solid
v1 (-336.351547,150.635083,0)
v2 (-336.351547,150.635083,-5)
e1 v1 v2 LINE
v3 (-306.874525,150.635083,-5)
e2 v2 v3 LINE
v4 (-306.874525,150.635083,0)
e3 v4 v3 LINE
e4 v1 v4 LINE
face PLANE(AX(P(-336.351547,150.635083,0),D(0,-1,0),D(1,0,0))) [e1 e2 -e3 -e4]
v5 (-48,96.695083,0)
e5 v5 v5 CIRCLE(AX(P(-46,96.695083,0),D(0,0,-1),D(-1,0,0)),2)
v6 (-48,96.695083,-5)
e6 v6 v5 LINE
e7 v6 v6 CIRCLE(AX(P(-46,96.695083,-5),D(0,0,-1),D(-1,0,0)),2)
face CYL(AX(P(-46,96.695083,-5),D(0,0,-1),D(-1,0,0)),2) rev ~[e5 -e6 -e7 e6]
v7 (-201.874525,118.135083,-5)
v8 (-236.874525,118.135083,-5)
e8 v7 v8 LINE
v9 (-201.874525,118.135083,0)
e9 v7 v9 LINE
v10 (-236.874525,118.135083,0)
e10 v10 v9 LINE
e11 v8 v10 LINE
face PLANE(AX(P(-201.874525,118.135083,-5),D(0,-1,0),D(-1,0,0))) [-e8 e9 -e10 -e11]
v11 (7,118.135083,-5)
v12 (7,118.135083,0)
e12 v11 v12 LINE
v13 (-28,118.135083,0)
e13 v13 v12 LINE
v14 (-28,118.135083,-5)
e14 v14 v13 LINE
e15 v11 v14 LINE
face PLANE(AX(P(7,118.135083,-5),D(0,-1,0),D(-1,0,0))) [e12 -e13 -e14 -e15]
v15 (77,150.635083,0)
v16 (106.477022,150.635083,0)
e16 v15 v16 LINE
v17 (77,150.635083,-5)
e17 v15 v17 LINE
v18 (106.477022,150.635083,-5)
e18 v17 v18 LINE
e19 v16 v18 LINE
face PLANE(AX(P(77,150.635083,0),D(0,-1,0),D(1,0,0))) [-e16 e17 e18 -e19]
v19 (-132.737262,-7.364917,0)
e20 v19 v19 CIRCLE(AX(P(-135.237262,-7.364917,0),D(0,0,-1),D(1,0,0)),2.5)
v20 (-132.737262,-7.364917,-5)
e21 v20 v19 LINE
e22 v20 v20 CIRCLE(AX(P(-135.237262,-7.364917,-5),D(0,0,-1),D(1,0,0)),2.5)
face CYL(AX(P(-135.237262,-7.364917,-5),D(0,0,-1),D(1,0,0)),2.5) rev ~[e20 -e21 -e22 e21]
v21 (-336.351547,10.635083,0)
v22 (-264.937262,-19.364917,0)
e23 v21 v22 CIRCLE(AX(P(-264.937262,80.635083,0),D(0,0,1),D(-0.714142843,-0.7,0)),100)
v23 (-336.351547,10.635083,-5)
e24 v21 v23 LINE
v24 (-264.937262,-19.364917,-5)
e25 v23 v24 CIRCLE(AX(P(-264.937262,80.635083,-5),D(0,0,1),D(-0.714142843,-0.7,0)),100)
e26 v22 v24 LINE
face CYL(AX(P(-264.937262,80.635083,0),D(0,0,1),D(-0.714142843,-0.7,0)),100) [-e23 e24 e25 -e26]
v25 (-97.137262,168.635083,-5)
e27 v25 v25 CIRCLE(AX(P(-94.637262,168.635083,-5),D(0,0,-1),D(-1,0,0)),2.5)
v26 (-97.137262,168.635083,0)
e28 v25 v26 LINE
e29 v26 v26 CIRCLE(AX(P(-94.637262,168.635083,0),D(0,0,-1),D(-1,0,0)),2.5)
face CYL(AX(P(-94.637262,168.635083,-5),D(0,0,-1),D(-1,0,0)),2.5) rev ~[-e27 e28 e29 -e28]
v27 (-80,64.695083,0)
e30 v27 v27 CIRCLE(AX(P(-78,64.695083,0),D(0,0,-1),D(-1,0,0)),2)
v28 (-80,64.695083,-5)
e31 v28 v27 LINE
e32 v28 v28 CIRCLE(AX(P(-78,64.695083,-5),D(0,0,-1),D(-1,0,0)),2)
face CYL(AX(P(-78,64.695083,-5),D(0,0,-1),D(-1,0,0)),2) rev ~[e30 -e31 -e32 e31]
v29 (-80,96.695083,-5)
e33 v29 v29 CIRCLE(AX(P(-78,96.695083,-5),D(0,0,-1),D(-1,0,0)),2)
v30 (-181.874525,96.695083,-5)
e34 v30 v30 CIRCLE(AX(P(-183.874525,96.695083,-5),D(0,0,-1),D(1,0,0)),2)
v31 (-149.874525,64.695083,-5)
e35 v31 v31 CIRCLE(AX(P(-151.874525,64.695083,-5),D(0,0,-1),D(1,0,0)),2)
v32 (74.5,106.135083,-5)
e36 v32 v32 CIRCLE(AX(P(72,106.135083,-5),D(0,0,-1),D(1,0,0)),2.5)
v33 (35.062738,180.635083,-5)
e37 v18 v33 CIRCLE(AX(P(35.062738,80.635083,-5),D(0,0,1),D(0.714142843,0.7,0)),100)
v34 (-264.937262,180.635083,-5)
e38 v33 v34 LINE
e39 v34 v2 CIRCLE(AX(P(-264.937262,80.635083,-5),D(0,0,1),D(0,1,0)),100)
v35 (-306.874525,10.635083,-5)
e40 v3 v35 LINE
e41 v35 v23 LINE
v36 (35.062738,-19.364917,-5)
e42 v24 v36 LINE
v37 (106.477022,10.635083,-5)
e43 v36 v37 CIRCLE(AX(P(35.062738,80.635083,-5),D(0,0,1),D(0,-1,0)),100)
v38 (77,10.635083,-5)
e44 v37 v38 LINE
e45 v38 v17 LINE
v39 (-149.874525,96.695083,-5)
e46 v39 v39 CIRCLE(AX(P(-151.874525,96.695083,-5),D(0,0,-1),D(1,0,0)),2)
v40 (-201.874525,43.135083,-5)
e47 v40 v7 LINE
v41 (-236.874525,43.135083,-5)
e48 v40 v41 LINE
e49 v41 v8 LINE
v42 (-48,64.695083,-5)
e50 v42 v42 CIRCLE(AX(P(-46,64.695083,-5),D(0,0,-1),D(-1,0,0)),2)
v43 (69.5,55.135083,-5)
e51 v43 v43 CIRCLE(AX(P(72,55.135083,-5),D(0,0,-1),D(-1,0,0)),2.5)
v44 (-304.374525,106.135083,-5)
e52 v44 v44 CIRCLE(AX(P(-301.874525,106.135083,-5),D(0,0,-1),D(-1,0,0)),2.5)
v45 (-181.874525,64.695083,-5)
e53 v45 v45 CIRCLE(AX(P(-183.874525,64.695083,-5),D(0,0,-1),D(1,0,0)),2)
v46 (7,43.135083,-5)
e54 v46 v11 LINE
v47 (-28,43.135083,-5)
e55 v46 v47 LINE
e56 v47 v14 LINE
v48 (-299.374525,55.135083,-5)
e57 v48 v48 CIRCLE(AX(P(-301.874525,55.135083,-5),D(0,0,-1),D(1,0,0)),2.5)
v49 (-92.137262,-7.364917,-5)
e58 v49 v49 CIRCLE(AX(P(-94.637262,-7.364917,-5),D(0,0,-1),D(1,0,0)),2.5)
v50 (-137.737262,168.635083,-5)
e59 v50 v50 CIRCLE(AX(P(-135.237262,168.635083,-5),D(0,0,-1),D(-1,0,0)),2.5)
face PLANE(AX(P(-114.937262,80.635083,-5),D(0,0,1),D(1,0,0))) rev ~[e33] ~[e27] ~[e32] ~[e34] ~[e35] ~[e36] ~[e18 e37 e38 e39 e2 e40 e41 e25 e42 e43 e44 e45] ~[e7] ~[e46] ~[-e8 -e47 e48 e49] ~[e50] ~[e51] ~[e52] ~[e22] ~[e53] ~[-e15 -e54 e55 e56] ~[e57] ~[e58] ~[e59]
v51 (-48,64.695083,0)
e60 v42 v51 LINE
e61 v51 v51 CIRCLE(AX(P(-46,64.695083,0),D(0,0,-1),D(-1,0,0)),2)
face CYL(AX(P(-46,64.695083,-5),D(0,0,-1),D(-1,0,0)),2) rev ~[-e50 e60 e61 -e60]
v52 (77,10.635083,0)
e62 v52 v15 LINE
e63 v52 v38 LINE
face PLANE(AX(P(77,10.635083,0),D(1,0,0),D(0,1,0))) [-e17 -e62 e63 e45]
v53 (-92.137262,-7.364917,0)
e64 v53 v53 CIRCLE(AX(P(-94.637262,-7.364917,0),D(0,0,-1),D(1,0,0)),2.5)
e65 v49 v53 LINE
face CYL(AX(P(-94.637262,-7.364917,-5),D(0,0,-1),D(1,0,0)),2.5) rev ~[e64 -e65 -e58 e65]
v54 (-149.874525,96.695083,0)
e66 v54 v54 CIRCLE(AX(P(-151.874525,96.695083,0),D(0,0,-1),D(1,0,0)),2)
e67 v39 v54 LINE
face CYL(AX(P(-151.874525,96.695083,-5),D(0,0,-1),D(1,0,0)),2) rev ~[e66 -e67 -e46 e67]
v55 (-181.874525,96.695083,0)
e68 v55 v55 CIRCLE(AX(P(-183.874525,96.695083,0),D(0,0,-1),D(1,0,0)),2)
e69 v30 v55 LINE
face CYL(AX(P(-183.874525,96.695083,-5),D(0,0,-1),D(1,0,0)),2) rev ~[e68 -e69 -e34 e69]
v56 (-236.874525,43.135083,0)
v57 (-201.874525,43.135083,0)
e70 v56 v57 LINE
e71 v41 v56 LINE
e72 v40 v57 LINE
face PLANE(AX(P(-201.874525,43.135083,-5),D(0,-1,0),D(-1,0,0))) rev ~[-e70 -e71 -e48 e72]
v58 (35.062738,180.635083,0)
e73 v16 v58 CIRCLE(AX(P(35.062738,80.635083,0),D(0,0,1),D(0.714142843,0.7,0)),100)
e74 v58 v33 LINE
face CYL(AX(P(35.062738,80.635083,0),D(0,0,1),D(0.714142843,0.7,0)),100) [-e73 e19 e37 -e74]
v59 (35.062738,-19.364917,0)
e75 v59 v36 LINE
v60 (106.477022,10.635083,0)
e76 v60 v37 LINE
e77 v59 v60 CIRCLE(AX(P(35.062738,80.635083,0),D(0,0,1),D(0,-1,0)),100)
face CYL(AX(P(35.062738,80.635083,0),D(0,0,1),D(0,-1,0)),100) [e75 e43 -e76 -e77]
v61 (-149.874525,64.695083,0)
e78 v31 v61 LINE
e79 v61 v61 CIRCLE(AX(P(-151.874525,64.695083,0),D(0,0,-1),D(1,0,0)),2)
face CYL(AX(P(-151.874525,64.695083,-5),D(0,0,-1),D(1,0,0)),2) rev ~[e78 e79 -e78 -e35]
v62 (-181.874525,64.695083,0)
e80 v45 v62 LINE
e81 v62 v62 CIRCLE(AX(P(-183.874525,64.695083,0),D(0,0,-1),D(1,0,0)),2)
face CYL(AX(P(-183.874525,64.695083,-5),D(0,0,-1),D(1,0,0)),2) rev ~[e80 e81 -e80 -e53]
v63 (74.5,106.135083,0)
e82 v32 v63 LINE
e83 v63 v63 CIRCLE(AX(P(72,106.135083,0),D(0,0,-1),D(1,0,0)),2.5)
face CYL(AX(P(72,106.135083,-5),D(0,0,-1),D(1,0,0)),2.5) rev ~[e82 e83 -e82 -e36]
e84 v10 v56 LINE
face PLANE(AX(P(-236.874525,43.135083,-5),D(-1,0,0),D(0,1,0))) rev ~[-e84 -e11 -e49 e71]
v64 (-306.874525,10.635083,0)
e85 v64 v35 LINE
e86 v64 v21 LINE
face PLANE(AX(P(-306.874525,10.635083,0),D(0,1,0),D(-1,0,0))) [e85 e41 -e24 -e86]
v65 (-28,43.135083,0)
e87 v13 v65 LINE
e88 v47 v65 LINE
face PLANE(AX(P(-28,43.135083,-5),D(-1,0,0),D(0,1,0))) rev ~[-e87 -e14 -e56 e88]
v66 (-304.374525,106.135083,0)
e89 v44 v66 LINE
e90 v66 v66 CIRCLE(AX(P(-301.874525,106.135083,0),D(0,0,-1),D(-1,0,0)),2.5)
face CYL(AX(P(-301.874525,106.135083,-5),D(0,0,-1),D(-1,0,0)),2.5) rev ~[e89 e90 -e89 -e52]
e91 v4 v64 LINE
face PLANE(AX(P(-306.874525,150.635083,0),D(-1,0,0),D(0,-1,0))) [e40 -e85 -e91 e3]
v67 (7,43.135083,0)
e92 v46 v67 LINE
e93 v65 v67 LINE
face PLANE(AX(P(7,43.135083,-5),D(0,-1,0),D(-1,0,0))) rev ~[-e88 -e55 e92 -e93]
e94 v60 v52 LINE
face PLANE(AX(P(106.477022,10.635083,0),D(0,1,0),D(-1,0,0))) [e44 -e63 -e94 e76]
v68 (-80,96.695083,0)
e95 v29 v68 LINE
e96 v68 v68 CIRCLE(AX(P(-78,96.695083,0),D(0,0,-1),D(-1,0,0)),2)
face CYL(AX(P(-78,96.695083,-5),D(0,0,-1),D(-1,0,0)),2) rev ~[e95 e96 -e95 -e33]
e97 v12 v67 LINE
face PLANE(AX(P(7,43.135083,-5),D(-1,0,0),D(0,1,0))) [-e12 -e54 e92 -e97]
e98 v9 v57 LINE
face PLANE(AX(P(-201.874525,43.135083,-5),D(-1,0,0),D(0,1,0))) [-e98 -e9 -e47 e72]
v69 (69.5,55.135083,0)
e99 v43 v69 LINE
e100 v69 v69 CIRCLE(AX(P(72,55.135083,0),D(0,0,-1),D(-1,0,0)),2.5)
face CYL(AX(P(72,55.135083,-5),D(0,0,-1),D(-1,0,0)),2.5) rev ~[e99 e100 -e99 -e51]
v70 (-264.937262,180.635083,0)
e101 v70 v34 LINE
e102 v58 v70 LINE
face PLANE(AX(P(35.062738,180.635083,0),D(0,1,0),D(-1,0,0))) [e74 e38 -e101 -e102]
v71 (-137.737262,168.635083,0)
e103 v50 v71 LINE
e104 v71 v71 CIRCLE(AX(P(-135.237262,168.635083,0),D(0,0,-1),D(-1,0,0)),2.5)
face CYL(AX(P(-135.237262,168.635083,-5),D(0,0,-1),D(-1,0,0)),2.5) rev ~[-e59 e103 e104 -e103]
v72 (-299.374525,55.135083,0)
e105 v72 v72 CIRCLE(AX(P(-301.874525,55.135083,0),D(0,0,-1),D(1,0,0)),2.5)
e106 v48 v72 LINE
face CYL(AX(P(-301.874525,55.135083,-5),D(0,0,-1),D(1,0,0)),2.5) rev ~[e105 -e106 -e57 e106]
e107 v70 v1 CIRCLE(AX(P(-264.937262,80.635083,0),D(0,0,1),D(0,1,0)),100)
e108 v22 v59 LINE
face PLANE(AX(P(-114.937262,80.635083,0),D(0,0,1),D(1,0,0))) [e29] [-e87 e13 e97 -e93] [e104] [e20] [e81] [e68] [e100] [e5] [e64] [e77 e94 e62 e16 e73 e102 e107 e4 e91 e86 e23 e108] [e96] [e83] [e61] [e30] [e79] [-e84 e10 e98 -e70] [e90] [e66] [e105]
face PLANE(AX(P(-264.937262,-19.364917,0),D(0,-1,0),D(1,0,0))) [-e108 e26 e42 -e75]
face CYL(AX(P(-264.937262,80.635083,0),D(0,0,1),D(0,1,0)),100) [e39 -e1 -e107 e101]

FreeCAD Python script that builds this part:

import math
import FreeCAD as App
import Part
import Sketcher


def add_polygon(sketch, points):
    """Adds a closed chain of lines whose ends are joined by coincident constraints."""
    first, n = sketch.GeometryCount, len(points)
    for a, b in zip(points, points[1:] + points[:1]):
        sketch.addGeometry(Part.LineSegment(App.Vector(*a, 0), App.Vector(*b, 0)), False)
    for i in range(n):
        sketch.addConstraint(Sketcher.Constraint("Coincident", first + i, 2, first + (i + 1) % n, 1))

doc = App.newDocument("Part")
params = doc.addObject("Spreadsheet::Sheet", "Params")
for row, (alias, value) in enumerate([
    ("sketch1_radius", "100 mm"),
    ("sketch1_width", "300 mm"),
    ("sketch1_height", "140 mm"),
    ("pad1_length", "5 mm"),
    ("sketch2_diameter", "5 mm"),
    ("sketch2_width", "35 mm"),
    ("sketch2_height", "75 mm"),
    ("pocket1_length", "10 mm"),
    ("sketch3_diameter", "4 mm"),
    ("pocket2_length", "10 mm"),
    ("sketch4_diameter", "5 mm"),
    ("pocket3_length", "10 mm"),
], start=1):
    params.set(f"A{row}", alias)
    params.set(f"B{row}", "=" + value)
    params.setAlias(f"B{row}", alias)

body = doc.addObject("PartDesign::Body", "Body")

# Sketch on XY plane
sketch1 = body.newObject("Sketcher::SketchObject", "Sketch")
sketch1.AttachmentSupport = (doc.getObject("XY_Plane"), [""])
sketch1.MapMode = "FlatFace"
sketch1.addGeometry(Part.LineSegment(App.Vector(77, 151, 0), App.Vector(106, 151, 0)), False)
sketch1.addGeometry(Part.ArcOfCircle(Part.Circle(App.Vector(35, 81, 0), App.Vector(0, 0, 1), 100), math.radians(44), math.radians(90)), False)
sketch1.addGeometry(Part.LineSegment(App.Vector(35, 181, 0), App.Vector(-265, 181, 0)), False)
sketch1.addGeometry(Part.ArcOfCircle(Part.Circle(App.Vector(-265, 81, 0), App.Vector(0, 0, 1), 100), math.radians(90), math.radians(136)), False)
sketch1.addGeometry(Part.LineSegment(App.Vector(-336, 151, 0), App.Vector(-307, 151, 0)), False)
sketch1.addGeometry(Part.LineSegment(App.Vector(-307, 151, 0), App.Vector(-307, 11, 0)), False)
sketch1.addGeometry(Part.LineSegment(App.Vector(-307, 11, 0), App.Vector(-336, 11, 0)), False)
sketch1.addGeometry(Part.ArcOfCircle(Part.Circle(App.Vector(-265, 81, 0), App.Vector(0, 0, 1), 100), math.radians(-136), math.radians(-90)), False)
sketch1.addGeometry(Part.LineSegment(App.Vector(-265, -19, 0), App.Vector(35, -19, 0)), False)
sketch1.addGeometry(Part.ArcOfCircle(Part.Circle(App.Vector(35, 81, 0), App.Vector(0, 0, 1), 100), math.radians(-90), math.radians(-44)), False)
sketch1.addGeometry(Part.LineSegment(App.Vector(106, 11, 0), App.Vector(77, 11, 0)), False)
sketch1.addGeometry(Part.LineSegment(App.Vector(77, 11, 0), App.Vector(77, 151, 0)), False)
sketch1.addConstraint(Sketcher.Constraint("Coincident", 0, 2, 1, 1))
sketch1.addConstraint(Sketcher.Constraint("Tangent", 1, 2, 2, 1))
sketch1.addConstraint(Sketcher.Constraint("Tangent", 2, 2, 3, 1))
sketch1.addConstraint(Sketcher.Constraint("Coincident", 3, 2, 4, 1))
sketch1.addConstraint(Sketcher.Constraint("Coincident", 4, 2, 5, 1))
sketch1.addConstraint(Sketcher.Constraint("Coincident", 5, 2, 6, 1))
sketch1.addConstraint(Sketcher.Constraint("Coincident", 6, 2, 7, 1))
sketch1.addConstraint(Sketcher.Constraint("Tangent", 7, 2, 8, 1))
sketch1.addConstraint(Sketcher.Constraint("Tangent", 8, 2, 9, 1))
sketch1.addConstraint(Sketcher.Constraint("Coincident", 9, 2, 10, 1))
sketch1.addConstraint(Sketcher.Constraint("Coincident", 10, 2, 11, 1))
sketch1.addConstraint(Sketcher.Constraint("Coincident", 11, 2, 0, 1))
sketch1.addConstraint(Sketcher.Constraint("Horizontal", 0))
sketch1.addConstraint(Sketcher.Constraint("Horizontal", 2))
sketch1.addConstraint(Sketcher.Constraint("Horizontal", 4))
sketch1.addConstraint(Sketcher.Constraint("Vertical", 5))
sketch1.addConstraint(Sketcher.Constraint("Horizontal", 6))
sketch1.addConstraint(Sketcher.Constraint("Horizontal", 8))
sketch1.addConstraint(Sketcher.Constraint("Horizontal", 10))
sketch1.addConstraint(Sketcher.Constraint("Vertical", 11))
sketch1.addConstraint(Sketcher.Constraint("Coincident", 7, 3, 3, 3))
sketch1.addConstraint(Sketcher.Constraint("Coincident", 9, 3, 1, 3))
sketch1.addConstraint(Sketcher.Constraint("Equal", 1, 3))
sketch1.addConstraint(Sketcher.Constraint("Equal", 3, 7))
sketch1.addConstraint(Sketcher.Constraint("Horizontal", 0, 2, 3, 2))
sketch1.addConstraint(Sketcher.Constraint("Horizontal", 6, 2, 9, 2))
sketch1.addConstraint(Sketcher.Constraint("Vertical", 3, 2, 6, 2))
sketch1.addConstraint(Sketcher.Constraint("Equal", 0, 4))
sketch1.addConstraint(Sketcher.Constraint("Radius", 1, 100.0))
sketch1.addConstraint(Sketcher.Constraint("DistanceX", 2, 2, 2, 1, 300.0))
sketch1.addConstraint(Sketcher.Constraint("DistanceY", 5, 2, 5, 1, 140.0))
sketch1.addConstraint(Sketcher.Constraint("DistanceX", -1, 1, 10, 2, 77.0))
sketch1.addConstraint(Sketcher.Constraint("DistanceX", 0, 1, 0, 2, 29.477022))
sketch1.addConstraint(Sketcher.Constraint("DistanceY", -1, 1, 1, 3, 80.635083))
sketch1.setExpression("Constraints[28]", "Params.sketch1_radius")
sketch1.setExpression("Constraints[29]", "Params.sketch1_width")
sketch1.setExpression("Constraints[30]", "Params.sketch1_height")
pad1 = body.newObject("PartDesign::Pad", "Pad")
pad1.Profile = sketch1
pad1.setExpression("Length", "Params.pad1_length")
pad1.Reversed = True

# Sketch on XY plane
sketch2 = body.newObject("Sketcher::SketchObject", "Sketch001")
sketch2.AttachmentSupport = (doc.getObject("XY_Plane"), [""])
sketch2.MapMode = "FlatFace"
sketch2.AttachmentOffset = App.Placement(App.Vector(0, 0, -5), App.Rotation())
sketch2.addGeometry(Part.Circle(App.Vector(-301.9, 106.1, 0), App.Vector(0, 0, 1), 2.5), False)  # 0
sketch2.addGeometry(Part.Circle(App.Vector(-301.9, 55.1, 0), App.Vector(0, 0, 1), 2.5), False)  # 1
sketch2.addGeometry(Part.Circle(App.Vector(72, 55.1, 0), App.Vector(0, 0, 1), 2.5), False)  # 2
sketch2.addGeometry(Part.Circle(App.Vector(72, 106.1, 0), App.Vector(0, 0, 1), 2.5), False)  # 3
add_polygon(sketch2, [(-201.9, 118.1), (-201.9, 43.1), (-236.9, 43.1), (-236.9, 118.1)])  # lines 4-7
add_polygon(sketch2, [(7, 118.1), (7, 43.1), (-28, 43.1), (-28, 118.1)])  # lines 8-11
sketch2.addConstraint(Sketcher.Constraint("Vertical", 4))
sketch2.addConstraint(Sketcher.Constraint("Horizontal", 5))
sketch2.addConstraint(Sketcher.Constraint("Vertical", 6))
sketch2.addConstraint(Sketcher.Constraint("Horizontal", 7))
sketch2.addConstraint(Sketcher.Constraint("Vertical", 8))
sketch2.addConstraint(Sketcher.Constraint("Horizontal", 9))
sketch2.addConstraint(Sketcher.Constraint("Vertical", 10))
sketch2.addConstraint(Sketcher.Constraint("Horizontal", 11))
sketch2.addConstraint(Sketcher.Constraint("Equal", 0, 1))
sketch2.addConstraint(Sketcher.Constraint("Equal", 1, 2))
sketch2.addConstraint(Sketcher.Constraint("Equal", 2, 3))
sketch2.addConstraint(Sketcher.Constraint("Horizontal", 1, 3, 2, 3))
sketch2.addConstraint(Sketcher.Constraint("Horizontal", 0, 3, 3, 3))
sketch2.addConstraint(Sketcher.Constraint("Horizontal", 5, 2, 8, 2))
sketch2.addConstraint(Sketcher.Constraint("Horizontal", 7, 2, 10, 2))
sketch2.addConstraint(Sketcher.Constraint("Vertical", 0, 3, 1, 3))
sketch2.addConstraint(Sketcher.Constraint("Vertical", 2, 3, 3, 3))
sketch2.addConstraint(Sketcher.Constraint("Equal", 7, 9))
sketch2.addConstraint(Sketcher.Constraint("Diameter", 0, 5.0))
sketch2.addConstraint(Sketcher.Constraint("DistanceX", 5, 2, 5, 1, 35.0))
sketch2.addConstraint(Sketcher.Constraint("DistanceY", 4, 2, 4, 1, 75.0))
sketch2.addConstraint(Sketcher.Constraint("DistanceX", -1, 1, 2, 3, 72.0))
sketch2.addConstraint(Sketcher.Constraint("DistanceX", -1, 1, 8, 2, 7.0))
sketch2.addConstraint(Sketcher.Constraint("DistanceY", 1, 3, 0, 3, 51.0))
sketch2.addConstraint(Sketcher.Constraint("DistanceX", 1, 3, 4, 2, 100.0))
sketch2.addConstraint(Sketcher.Constraint("DistanceY", 4, 2, 1, 3, 12.0))
sketch2.addConstraint(Sketcher.Constraint("DistanceX", 0, 3, -1, 1, 301.874525))
sketch2.addConstraint(Sketcher.Constraint("DistanceY", -1, 1, 0, 3, 106.135083))
sketch2.setExpression("Constraints[26]", "Params.sketch2_diameter")
sketch2.setExpression("Constraints[27]", "Params.sketch2_width")
sketch2.setExpression("Constraints[28]", "Params.sketch2_height")
pocket1 = body.newObject("PartDesign::Pocket", "Pocket")
pocket1.Profile = sketch2
pocket1.setExpression("Length", "Params.pocket1_length")
pocket1.Reversed = True

# Sketch on XY plane
sketch3 = body.newObject("Sketcher::SketchObject", "Sketch002")
sketch3.AttachmentSupport = (doc.getObject("XY_Plane"), [""])
sketch3.MapMode = "FlatFace"
sketch3.AttachmentOffset = App.Placement(App.Vector(0, 0, -5), App.Rotation())
sketch3.addGeometry(Part.Circle(App.Vector(-46, 64.7, 0), App.Vector(0, 0, 1), 2), False)
sketch3.addGeometry(Part.Circle(App.Vector(-46, 96.7, 0), App.Vector(0, 0, 1), 2), False)
sketch3.addGeometry(Part.Circle(App.Vector(-78, 64.7, 0), App.Vector(0, 0, 1), 2), False)
sketch3.addGeometry(Part.Circle(App.Vector(-78, 96.7, 0), App.Vector(0, 0, 1), 2), False)
sketch3.addGeometry(Part.Circle(App.Vector(-151.9, 64.7, 0), App.Vector(0, 0, 1), 2), False)
sketch3.addGeometry(Part.Circle(App.Vector(-183.9, 64.7, 0), App.Vector(0, 0, 1), 2), False)
sketch3.addGeometry(Part.Circle(App.Vector(-183.9, 96.7, 0), App.Vector(0, 0, 1), 2), False)
sketch3.addGeometry(Part.Circle(App.Vector(-151.9, 96.7, 0), App.Vector(0, 0, 1), 2), False)
sketch3.addConstraint(Sketcher.Constraint("Equal", 0, 1))
sketch3.addConstraint(Sketcher.Constraint("Equal", 1, 2))
sketch3.addConstraint(Sketcher.Constraint("Equal", 2, 3))
sketch3.addConstraint(Sketcher.Constraint("Equal", 3, 4))
sketch3.addConstraint(Sketcher.Constraint("Equal", 4, 5))
sketch3.addConstraint(Sketcher.Constraint("Equal", 5, 6))
sketch3.addConstraint(Sketcher.Constraint("Equal", 6, 7))
sketch3.addConstraint(Sketcher.Constraint("Horizontal", 0, 3, 2, 3))
sketch3.addConstraint(Sketcher.Constraint("Horizontal", 1, 3, 3, 3))
sketch3.addConstraint(Sketcher.Constraint("Horizontal", 2, 3, 4, 3))
sketch3.addConstraint(Sketcher.Constraint("Horizontal", 4, 3, 5, 3))
sketch3.addConstraint(Sketcher.Constraint("Horizontal", 3, 3, 6, 3))
sketch3.addConstraint(Sketcher.Constraint("Horizontal", 6, 3, 7, 3))
sketch3.addConstraint(Sketcher.Constraint("Vertical", 0, 3, 1, 3))
sketch3.addConstraint(Sketcher.Constraint("Vertical", 2, 3, 3, 3))
sketch3.addConstraint(Sketcher.Constraint("Vertical", 5, 3, 6, 3))
sketch3.addConstraint(Sketcher.Constraint("Vertical", 4, 3, 7, 3))
sketch3.addConstraint(Sketcher.Constraint("Diameter", 0, 4.0))
sketch3.addConstraint(Sketcher.Constraint("DistanceX", 0, 3, -1, 1, 46.0))
sketch3.addConstraint(Sketcher.Constraint("DistanceX", 2, 3, -1, 1, 78.0))
sketch3.addConstraint(Sketcher.Constraint("DistanceY", 0, 3, 1, 3, 32.0))
sketch3.addConstraint(Sketcher.Constraint("DistanceX", 5, 3, 4, 3, 32.0))
sketch3.addConstraint(Sketcher.Constraint("DistanceY", -1, 1, 0, 3, 64.695083))
sketch3.addConstraint(Sketcher.Constraint("DistanceX", 4, 3, -1, 1, 151.874525))
sketch3.setExpression("Constraints[17]", "Params.sketch3_diameter")
pocket2 = body.newObject("PartDesign::Pocket", "Pocket001")
pocket2.Profile = sketch3
pocket2.setExpression("Length", "Params.pocket2_length")
pocket2.Reversed = True

# Sketch on XY plane
sketch4 = body.newObject("Sketcher::SketchObject", "Sketch003")
sketch4.AttachmentSupport = (doc.getObject("XY_Plane"), [""])
sketch4.MapMode = "FlatFace"
sketch4.AttachmentOffset = App.Placement(App.Vector(0, 0, -5), App.Rotation())
sketch4.addGeometry(Part.Circle(App.Vector(-94.6, 168.6, 0), App.Vector(0, 0, 1), 2.5), False)
sketch4.addGeometry(Part.Circle(App.Vector(-135.2, 168.6, 0), App.Vector(0, 0, 1), 2.5), False)
sketch4.addGeometry(Part.Circle(App.Vector(-94.6, -7.4, 0), App.Vector(0, 0, 1), 2.5), False)
sketch4.addGeometry(Part.Circle(App.Vector(-135.2, -7.4, 0), App.Vector(0, 0, 1), 2.5), False)
sketch4.addConstraint(Sketcher.Constraint("Equal", 0, 1))
sketch4.addConstraint(Sketcher.Constraint("Equal", 1, 2))
sketch4.addConstraint(Sketcher.Constraint("Equal", 2, 3))
sketch4.addConstraint(Sketcher.Constraint("Horizontal", 0, 3, 1, 3))
sketch4.addConstraint(Sketcher.Constraint("Horizontal", 2, 3, 3, 3))
sketch4.addConstraint(Sketcher.Constraint("Vertical", 0, 3, 2, 3))
sketch4.addConstraint(Sketcher.Constraint("Vertical", 1, 3, 3, 3))
sketch4.addConstraint(Sketcher.Constraint("Diameter", 0, 5.0))
sketch4.addConstraint(Sketcher.Constraint("DistanceY", 2, 3, 0, 3, 176.0))
sketch4.addConstraint(Sketcher.Constraint("DistanceX", 1, 3, 0, 3, 40.6))
sketch4.addConstraint(Sketcher.Constraint("DistanceX", 0, 3, -1, 1, 94.637262))
sketch4.addConstraint(Sketcher.Constraint("DistanceY", -1, 1, 0, 3, 168.635083))
sketch4.setExpression("Constraints[7]", "Params.sketch4_diameter")
pocket3 = body.newObject("PartDesign::Pocket", "Pocket002")
pocket3.Profile = sketch4
pocket3.setExpression("Length", "Params.pocket3_length")
pocket3.Reversed = True

doc.recompute()
